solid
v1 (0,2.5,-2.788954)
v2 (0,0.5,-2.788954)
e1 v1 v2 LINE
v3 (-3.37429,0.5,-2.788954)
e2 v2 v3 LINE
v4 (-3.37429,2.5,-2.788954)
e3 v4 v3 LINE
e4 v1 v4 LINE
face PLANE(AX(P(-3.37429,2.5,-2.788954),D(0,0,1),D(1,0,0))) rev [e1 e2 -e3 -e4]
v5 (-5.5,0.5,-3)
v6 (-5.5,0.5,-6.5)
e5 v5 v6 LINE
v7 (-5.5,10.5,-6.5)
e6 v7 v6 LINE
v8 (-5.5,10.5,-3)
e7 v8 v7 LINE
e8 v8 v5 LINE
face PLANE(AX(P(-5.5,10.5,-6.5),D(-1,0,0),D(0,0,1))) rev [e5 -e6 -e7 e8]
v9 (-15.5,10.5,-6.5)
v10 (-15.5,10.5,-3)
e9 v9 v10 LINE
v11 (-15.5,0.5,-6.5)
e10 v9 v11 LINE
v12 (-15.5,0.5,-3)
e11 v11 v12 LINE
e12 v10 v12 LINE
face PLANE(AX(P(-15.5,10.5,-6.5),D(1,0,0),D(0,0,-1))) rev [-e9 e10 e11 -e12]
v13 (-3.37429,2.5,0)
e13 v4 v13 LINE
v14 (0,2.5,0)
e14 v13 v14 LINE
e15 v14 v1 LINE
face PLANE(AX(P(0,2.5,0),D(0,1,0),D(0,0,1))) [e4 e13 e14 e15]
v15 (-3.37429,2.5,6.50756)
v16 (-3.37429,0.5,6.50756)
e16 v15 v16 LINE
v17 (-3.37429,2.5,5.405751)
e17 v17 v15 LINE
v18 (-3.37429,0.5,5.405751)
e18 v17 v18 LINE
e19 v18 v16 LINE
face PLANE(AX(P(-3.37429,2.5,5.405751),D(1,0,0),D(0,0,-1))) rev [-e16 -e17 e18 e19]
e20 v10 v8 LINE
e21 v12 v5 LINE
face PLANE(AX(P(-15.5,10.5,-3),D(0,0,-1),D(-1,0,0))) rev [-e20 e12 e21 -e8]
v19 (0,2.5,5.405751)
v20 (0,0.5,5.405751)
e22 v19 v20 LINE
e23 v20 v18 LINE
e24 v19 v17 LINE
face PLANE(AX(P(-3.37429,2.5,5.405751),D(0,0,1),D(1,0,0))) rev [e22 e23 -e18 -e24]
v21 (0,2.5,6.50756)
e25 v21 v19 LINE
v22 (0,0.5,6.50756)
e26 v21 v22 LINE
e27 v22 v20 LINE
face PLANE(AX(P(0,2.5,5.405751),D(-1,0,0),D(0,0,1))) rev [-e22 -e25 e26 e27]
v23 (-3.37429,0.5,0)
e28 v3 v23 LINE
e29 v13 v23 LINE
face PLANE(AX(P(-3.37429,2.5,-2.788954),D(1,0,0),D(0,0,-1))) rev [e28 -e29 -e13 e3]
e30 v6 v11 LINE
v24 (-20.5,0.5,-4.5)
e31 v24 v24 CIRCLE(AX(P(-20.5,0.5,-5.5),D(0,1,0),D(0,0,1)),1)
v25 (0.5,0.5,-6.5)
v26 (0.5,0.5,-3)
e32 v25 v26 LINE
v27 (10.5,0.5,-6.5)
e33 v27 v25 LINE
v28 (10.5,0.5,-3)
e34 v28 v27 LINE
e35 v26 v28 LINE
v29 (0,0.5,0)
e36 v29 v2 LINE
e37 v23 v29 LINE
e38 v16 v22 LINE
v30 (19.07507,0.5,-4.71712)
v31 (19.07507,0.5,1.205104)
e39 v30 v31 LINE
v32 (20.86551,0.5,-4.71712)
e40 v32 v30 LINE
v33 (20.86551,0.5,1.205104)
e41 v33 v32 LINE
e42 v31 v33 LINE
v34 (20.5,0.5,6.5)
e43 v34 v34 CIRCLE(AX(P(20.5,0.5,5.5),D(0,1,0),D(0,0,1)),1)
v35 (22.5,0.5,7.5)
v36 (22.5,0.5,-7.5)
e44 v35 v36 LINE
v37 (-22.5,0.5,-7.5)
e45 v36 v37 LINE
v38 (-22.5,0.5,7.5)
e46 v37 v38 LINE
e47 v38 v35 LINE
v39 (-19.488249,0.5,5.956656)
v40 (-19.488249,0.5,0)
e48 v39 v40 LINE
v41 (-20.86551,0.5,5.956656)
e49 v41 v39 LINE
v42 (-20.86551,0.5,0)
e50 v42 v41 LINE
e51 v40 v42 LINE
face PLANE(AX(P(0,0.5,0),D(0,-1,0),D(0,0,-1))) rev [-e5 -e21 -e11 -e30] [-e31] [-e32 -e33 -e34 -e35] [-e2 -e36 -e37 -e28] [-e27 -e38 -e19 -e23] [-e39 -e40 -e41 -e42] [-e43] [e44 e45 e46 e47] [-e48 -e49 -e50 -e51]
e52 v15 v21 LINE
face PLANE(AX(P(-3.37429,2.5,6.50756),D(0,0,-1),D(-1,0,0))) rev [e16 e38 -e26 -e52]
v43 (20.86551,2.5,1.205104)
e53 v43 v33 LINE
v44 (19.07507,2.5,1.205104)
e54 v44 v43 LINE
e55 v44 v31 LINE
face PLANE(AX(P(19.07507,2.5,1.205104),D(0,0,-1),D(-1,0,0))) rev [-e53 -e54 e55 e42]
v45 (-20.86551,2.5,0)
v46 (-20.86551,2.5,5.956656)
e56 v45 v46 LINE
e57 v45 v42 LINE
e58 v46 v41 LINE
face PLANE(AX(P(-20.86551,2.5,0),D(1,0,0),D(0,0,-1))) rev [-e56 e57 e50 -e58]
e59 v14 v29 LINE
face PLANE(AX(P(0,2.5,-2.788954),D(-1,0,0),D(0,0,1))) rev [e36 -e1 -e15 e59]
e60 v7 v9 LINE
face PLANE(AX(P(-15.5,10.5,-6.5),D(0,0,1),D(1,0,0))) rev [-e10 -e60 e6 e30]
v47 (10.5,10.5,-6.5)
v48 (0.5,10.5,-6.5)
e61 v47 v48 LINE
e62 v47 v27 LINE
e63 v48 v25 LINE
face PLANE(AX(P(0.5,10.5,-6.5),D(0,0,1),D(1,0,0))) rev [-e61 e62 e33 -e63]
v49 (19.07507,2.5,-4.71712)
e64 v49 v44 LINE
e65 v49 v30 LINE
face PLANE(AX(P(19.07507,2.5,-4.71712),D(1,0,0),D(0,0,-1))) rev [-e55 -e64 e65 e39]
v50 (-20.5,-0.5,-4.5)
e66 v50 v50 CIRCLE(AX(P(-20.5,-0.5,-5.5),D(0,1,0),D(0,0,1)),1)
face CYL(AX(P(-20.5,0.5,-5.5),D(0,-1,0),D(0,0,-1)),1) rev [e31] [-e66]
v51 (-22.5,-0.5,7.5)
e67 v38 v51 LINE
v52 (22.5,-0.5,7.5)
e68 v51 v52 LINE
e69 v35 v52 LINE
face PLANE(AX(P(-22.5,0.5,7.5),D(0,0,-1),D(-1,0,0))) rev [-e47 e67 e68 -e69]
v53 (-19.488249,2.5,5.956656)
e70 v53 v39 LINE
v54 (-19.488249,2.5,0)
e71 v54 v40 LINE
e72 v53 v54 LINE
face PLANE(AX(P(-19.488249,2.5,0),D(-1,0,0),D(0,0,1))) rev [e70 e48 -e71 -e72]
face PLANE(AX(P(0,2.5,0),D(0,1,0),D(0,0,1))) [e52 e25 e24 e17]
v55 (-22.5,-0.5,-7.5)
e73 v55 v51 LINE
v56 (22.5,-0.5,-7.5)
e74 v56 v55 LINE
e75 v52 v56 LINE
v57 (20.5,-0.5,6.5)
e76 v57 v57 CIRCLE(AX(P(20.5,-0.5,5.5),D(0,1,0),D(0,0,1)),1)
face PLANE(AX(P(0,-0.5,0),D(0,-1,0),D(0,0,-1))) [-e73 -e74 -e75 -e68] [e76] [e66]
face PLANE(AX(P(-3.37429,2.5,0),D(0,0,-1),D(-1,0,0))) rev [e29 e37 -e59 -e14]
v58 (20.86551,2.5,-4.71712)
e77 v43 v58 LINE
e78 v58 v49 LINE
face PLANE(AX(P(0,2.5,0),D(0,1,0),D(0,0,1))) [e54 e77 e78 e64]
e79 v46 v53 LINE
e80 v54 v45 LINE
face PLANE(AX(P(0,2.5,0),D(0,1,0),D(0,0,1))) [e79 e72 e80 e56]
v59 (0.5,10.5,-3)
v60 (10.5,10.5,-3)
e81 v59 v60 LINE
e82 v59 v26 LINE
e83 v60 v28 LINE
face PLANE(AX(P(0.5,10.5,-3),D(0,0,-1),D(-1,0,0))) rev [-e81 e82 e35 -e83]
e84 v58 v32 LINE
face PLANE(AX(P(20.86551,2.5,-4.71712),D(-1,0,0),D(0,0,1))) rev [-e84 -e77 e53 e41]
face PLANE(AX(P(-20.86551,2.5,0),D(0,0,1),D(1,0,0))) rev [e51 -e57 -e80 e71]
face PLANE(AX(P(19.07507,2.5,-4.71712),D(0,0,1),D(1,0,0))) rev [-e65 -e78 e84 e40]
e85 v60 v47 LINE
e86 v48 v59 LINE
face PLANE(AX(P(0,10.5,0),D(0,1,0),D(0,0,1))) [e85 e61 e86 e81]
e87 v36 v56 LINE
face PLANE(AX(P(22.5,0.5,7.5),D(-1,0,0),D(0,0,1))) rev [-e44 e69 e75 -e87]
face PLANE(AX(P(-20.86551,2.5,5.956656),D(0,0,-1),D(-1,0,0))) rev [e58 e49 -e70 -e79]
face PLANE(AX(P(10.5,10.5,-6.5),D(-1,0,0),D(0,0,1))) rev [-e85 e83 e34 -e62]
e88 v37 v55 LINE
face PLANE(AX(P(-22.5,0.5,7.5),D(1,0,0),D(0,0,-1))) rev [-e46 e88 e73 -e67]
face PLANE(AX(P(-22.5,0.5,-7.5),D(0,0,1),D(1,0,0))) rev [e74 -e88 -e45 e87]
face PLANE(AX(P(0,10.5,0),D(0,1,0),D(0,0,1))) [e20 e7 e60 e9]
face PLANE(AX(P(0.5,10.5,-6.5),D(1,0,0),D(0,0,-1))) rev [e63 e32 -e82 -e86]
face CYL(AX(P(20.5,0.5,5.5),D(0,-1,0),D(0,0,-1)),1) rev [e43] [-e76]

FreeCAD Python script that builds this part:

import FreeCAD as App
import Part
import Sketcher

V = App.Vector
Q = App.Units.Quantity

doc = App.newDocument("Part")
body = doc.addObject("PartDesign::Body", "Body")

# Sketch on XZ plane
sketch1 = body.newObject("Sketcher::SketchObject", "Sketch")
sketch1.AttachmentSupport = (doc.getObject("XZ_Plane"), [""])
sketch1.MapMode = "FlatFace"
sketch1.addGeometry([
    Part.LineSegment(V(-22.5, -7.5, 0), V(-22.5, 7.5, 0)),  # 0
    Part.LineSegment(V(-22.5, 7.5, 0), V(22.5, 7.5, 0)),  # 1
    Part.LineSegment(V(22.5, 7.5, 0), V(22.5, -7.5, 0)),  # 2
    Part.LineSegment(V(22.5, -7.5, 0), V(-22.5, -7.5, 0)),  # 3
    Part.Circle(V(20.5, 5.5, 0), V(0, 0, 1), 1),  # 4
    Part.Circle(V(-20.5, -5.5, 0), V(0, 0, 1), 1),  # 5
], False)
sketch1.addConstraint([
    Sketcher.Constraint("Coincident", 0, 2, 1, 1),
    Sketcher.Constraint("Coincident", 1, 2, 2, 1),
    Sketcher.Constraint("Coincident", 2, 2, 3, 1),
    Sketcher.Constraint("Coincident", 3, 2, 0, 1),
    Sketcher.Constraint("Vertical", 0),
    Sketcher.Constraint("Horizontal", 1),
    Sketcher.Constraint("Vertical", 2),
    Sketcher.Constraint("Horizontal", 3),
    Sketcher.Constraint("Equal", 4, 5),
    Sketcher.Constraint("Symmetric", 4, 3, 5, 3, -1, 1),
    Sketcher.Constraint("Symmetric", 0, 2, 2, 2, -1, 1),
    Sketcher.Constraint("Diameter", 4, Q("2 mm")),
    Sketcher.Constraint("DistanceX", 1, 1, 1, 2, Q("45 mm")),
    Sketcher.Constraint("DistanceY", 0, 1, 0, 2, Q("15 mm")),
    Sketcher.Constraint("DistanceX", 5, 3, 4, 3, Q("41 mm")),
    Sketcher.Constraint("DistanceY", 5, 3, 4, 3, Q("11 mm")),
])
pad1 = body.newObject("PartDesign::Pad", "Pad")
pad1.Profile = sketch1
pad1.Length = 1
pad1.Midplane = True

# Sketch on XZ plane
sketch2 = body.newObject("Sketcher::SketchObject", "Sketch001")
sketch2.AttachmentSupport = (doc.getObject("XZ_Plane"), [""])
sketch2.MapMode = "FlatFace"
sketch2.AttachmentOffset = App.Placement(V(0, 0, -0.5), App.Rotation())
sketch2.addGeometry([
    Part.LineSegment(V(-15.5, -6.5, 0), V(-15.5, -3, 0)),  # 0
    Part.LineSegment(V(-15.5, -3, 0), V(-5.5, -3, 0)),  # 1
    Part.LineSegment(V(-5.5, -3, 0), V(-5.5, -6.5, 0)),  # 2
    Part.LineSegment(V(-5.5, -6.5, 0), V(-15.5, -6.5, 0)),  # 3
    Part.LineSegment(V(0.5, -6.5, 0), V(0.5, -3, 0)),  # 4
    Part.LineSegment(V(0.5, -3, 0), V(10.5, -3, 0)),  # 5
    Part.LineSegment(V(10.5, -3, 0), V(10.5, -6.5, 0)),  # 6
    Part.LineSegment(V(10.5, -6.5, 0), V(0.5, -6.5, 0)),  # 7
], False)
sketch2.addConstraint([
    Sketcher.Constraint("Coincident", 0, 2, 1, 1),
    Sketcher.Constraint("Coincident", 1, 2, 2, 1),
    Sketcher.Constraint("Coincident", 2, 2, 3, 1),
    Sketcher.Constraint("Coincident", 3, 2, 0, 1),
    Sketcher.Constraint("Coincident", 4, 2, 5, 1),
    Sketcher.Constraint("Coincident", 5, 2, 6, 1),
    Sketcher.Constraint("Coincident", 6, 2, 7, 1),
    Sketcher.Constraint("Coincident", 7, 2, 4, 1),
    Sketcher.Constraint("Vertical", 0),
    Sketcher.Constraint("Horizontal", 1),
    Sketcher.Constraint("Vertical", 2),
    Sketcher.Constraint("Horizontal", 3),
    Sketcher.Constraint("Vertical", 4),
    Sketcher.Constraint("Horizontal", 5),
    Sketcher.Constraint("Vertical", 6),
    Sketcher.Constraint("Horizontal", 7),
    Sketcher.Constraint("Horizontal", 1, 2, 4, 2),
    Sketcher.Constraint("Horizontal", 3, 2, 6, 2),
    Sketcher.Constraint("Equal", 3, 5),
    Sketcher.Constraint("DistanceX", 1, 1, 1, 2, Q("10 mm")),
    Sketcher.Constraint("DistanceY", 0, 1, 0, 2, Q("3.5 mm")),
    Sketcher.Constraint("DistanceY", 0, 2, -1, 1, Q("3 mm")),
    Sketcher.Constraint("DistanceX", 1, 2, 4, 2, Q("6 mm")),
    Sketcher.Constraint("DistanceX", 0, 2, -1, 1, Q("15.5 mm")),
])
pad2 = body.newObject("PartDesign::Pad", "Pad001")
pad2.Profile = sketch2
pad2.Length = 10
pad2.Reversed = True

# Sketch on XZ plane
sketch3 = body.newObject("Sketcher::SketchObject", "Sketch002")
sketch3.AttachmentSupport = (doc.getObject("XZ_Plane"), [""])
sketch3.MapMode = "FlatFace"
sketch3.AttachmentOffset = App.Placement(V(0, 0, -0.5), App.Rotation())
sketch3.addGeometry([
    Part.LineSegment(V(-3.37429, -2.788954, 0), V(-3.37429, 0, 0)),  # 0
    Part.LineSegment(V(-3.37429, 0, 0), V(0, 0, 0)),  # 1
    Part.LineSegment(V(0, 0, 0), V(0, -2.788954, 0)),  # 2
    Part.LineSegment(V(0, -2.788954, 0), V(-3.37429, -2.788954, 0)),  # 3
    Part.LineSegment(V(-20.86551, 0, 0), V(-20.86551, 5.956656, 0)),  # 4
    Part.LineSegment(V(-20.86551, 5.956656, 0), V(-19.488249, 5.956656, 0)),  # 5
    Part.LineSegment(V(-19.488249, 5.956656, 0), V(-19.488249, 0, 0)),  # 6
    Part.LineSegment(V(-19.488249, 0, 0), V(-20.86551, 0, 0)),  # 7
    Part.LineSegment(V(-3.37429, 5.405751, 0), V(-3.37429, 6.50756, 0)),  # 8
    Part.LineSegment(V(-3.37429, 6.50756, 0), V(0, 6.50756, 0)),  # 9
    Part.LineSegment(V(0, 6.50756, 0), V(0, 5.405751, 0)),  # 10
    Part.LineSegment(V(0, 5.405751, 0), V(-3.37429, 5.405751, 0)),  # 11
    Part.LineSegment(V(19.07507, -4.71712, 0), V(19.07507, 1.205104, 0)),  # 12
    Part.LineSegment(V(19.07507, 1.205104, 0), V(20.86551, 1.205104, 0)),  # 13
    Part.LineSegment(V(20.86551, 1.205104, 0), V(20.86551, -4.71712, 0)),  # 14
    Part.LineSegment(V(20.86551, -4.71712, 0), V(19.07507, -4.71712, 0)),  # 15
], False)
sketch3.addConstraint([
    Sketcher.Constraint("Coincident", 0, 2, 1, 1),
    Sketcher.Constraint("Coincident", 1, 2, 2, 1),
    Sketcher.Constraint("Coincident", 2, 2, 3, 1),
    Sketcher.Constraint("Coincident", 3, 2, 0, 1),
    Sketcher.Constraint("Coincident", 4, 2, 5, 1),
    Sketcher.Constraint("Coincident", 5, 2, 6, 1),
    Sketcher.Constraint("Coincident", 6, 2, 7, 1),
    Sketcher.Constraint("Coincident", 7, 2, 4, 1),
    Sketcher.Constraint("Coincident", 8, 2, 9, 1),
    Sketcher.Constraint("Coincident", 9, 2, 10, 1),
    Sketcher.Constraint("Coincident", 10, 2, 11, 1),
    Sketcher.Constraint("Coincident", 11, 2, 8, 1),
    Sketcher.Constraint("Coincident", 12, 2, 13, 1),
    Sketcher.Constraint("Coincident", 13, 2, 14, 1),
    Sketcher.Constraint("Coincident", 14, 2, 15, 1),
    Sketcher.Constraint("Coincident", 15, 2, 12, 1),
    Sketcher.Constraint("Vertical", 0),
    Sketcher.Constraint("Horizontal", 1),
    Sketcher.Constraint("Vertical", 2),
    Sketcher.Constraint("Horizontal", 3),
    Sketcher.Constraint("Vertical", 4),
    Sketcher.Constraint("Horizontal", 5),
    Sketcher.Constraint("Vertical", 6),
    Sketcher.Constraint("Horizontal", 7),
    Sketcher.Constraint("Vertical", 8),
    Sketcher.Constraint("Horizontal", 9),
    Sketcher.Constraint("Vertical", 10),
    Sketcher.Constraint("Horizontal", 11),
    Sketcher.Constraint("Vertical", 12),
    Sketcher.Constraint("Horizontal", 13),
    Sketcher.Constraint("Vertical", 14),
    Sketcher.Constraint("Horizontal", 15),
    Sketcher.Constraint("Coincident", 1, 2, -1, 1),
    Sketcher.Constraint("PointOnObject", 6, 2, -1),
    Sketcher.Constraint("PointOnObject", 9, 2, -2),
    Sketcher.Constraint("Vertical", 3, 2, 8, 2),
    Sketcher.Constraint("DistanceX", 1, 1, 1, 2, Q("3.37429 mm")),
    Sketcher.Constraint("DistanceX", 5, 1, 5, 2, Q("1.377261 mm")),
    Sketcher.Constraint("DistanceX", 13, 1, 13, 2, Q("1.79044 mm")),
    Sketcher.Constraint("DistanceY", 8, 1, 8, 2, Q("1.101809 mm")),
    Sketcher.Constraint("DistanceY", 0, 1, 0, 2, Q("2.788954 mm")),
    Sketcher.Constraint("DistanceY", 4, 1, 4, 2, Q("5.956656 mm")),
    Sketcher.Constraint("DistanceY", 12, 1, 12, 2, Q("5.922224 mm")),
    Sketcher.Constraint("DistanceX", 4, 2, -1, 1, Q("20.86551 mm")),
    Sketcher.Constraint("DistanceY", -1, 1, 8, 2, Q("6.50756 mm")),
    Sketcher.Constraint("DistanceX", -1, 1, 12, 2, Q("19.07507 mm")),
    Sketcher.Constraint("DistanceY", 14, 2, -1, 1, Q("4.71712 mm")),
])
pad3 = body.newObject("PartDesign::Pad", "Pad002")
pad3.Profile = sketch3
pad3.Length = 2
pad3.Reversed = True

doc.recompute()
